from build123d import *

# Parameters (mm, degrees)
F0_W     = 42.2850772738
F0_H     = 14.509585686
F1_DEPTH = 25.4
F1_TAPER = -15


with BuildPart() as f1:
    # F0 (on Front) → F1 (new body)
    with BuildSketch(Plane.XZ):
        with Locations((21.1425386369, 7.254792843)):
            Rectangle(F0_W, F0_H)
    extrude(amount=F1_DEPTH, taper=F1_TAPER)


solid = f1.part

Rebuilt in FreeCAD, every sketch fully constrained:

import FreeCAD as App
import Part
import Sketcher
Q = App.Units.Quantity


def add_polygon(sketch, points):
    """Adds a closed chain of lines whose ends are joined by coincident constraints."""
    first, n = sketch.GeometryCount, len(points)
    for a, b in zip(points, points[1:] + points[:1]):
        sketch.addGeometry(Part.LineSegment(App.Vector(*a, 0), App.Vector(*b, 0)), False)
    for i in range(n):
        sketch.addConstraint(Sketcher.Constraint("Coincident", first + i, 2, first + (i + 1) % n, 1))

doc = App.newDocument("Part")
body = doc.addObject("PartDesign::Body", "Body")

# Sketch on XZ plane
sketch1 = doc.addObject("Sketcher::SketchObject", "Sketch")
body.addObject(sketch1)
sketch1.AttachmentSupport = (doc.XZ_Plane, [""])
sketch1.MapMode = "FlatFace"
add_polygon(sketch1, [(0, 14.509586), (0, 0), (42.285077, 0), (42.285077, 14.509586)])  # lines 0-3
sketch1.addConstraint(Sketcher.Constraint("Vertical", 0))
sketch1.addConstraint(Sketcher.Constraint("Horizontal", 1))
sketch1.addConstraint(Sketcher.Constraint("Vertical", 2))
sketch1.addConstraint(Sketcher.Constraint("Horizontal", 3))
sketch1.addConstraint(Sketcher.Constraint("Coincident", 0, 2, -1, 1))
sketch1.addConstraint(Sketcher.Constraint("DistanceX", 1, 1, 1, 2, 42.285077))
sketch1.addConstraint(Sketcher.Constraint("DistanceY", 0, 2, 0, 1, 14.509586))
pad1 = doc.addObject("PartDesign::Pad", "Pad")
body.addObject(pad1)
pad1.Profile = sketch1
pad1.Length = Q("1 in")
pad1.TaperAngle = 15

doc.recompute()
